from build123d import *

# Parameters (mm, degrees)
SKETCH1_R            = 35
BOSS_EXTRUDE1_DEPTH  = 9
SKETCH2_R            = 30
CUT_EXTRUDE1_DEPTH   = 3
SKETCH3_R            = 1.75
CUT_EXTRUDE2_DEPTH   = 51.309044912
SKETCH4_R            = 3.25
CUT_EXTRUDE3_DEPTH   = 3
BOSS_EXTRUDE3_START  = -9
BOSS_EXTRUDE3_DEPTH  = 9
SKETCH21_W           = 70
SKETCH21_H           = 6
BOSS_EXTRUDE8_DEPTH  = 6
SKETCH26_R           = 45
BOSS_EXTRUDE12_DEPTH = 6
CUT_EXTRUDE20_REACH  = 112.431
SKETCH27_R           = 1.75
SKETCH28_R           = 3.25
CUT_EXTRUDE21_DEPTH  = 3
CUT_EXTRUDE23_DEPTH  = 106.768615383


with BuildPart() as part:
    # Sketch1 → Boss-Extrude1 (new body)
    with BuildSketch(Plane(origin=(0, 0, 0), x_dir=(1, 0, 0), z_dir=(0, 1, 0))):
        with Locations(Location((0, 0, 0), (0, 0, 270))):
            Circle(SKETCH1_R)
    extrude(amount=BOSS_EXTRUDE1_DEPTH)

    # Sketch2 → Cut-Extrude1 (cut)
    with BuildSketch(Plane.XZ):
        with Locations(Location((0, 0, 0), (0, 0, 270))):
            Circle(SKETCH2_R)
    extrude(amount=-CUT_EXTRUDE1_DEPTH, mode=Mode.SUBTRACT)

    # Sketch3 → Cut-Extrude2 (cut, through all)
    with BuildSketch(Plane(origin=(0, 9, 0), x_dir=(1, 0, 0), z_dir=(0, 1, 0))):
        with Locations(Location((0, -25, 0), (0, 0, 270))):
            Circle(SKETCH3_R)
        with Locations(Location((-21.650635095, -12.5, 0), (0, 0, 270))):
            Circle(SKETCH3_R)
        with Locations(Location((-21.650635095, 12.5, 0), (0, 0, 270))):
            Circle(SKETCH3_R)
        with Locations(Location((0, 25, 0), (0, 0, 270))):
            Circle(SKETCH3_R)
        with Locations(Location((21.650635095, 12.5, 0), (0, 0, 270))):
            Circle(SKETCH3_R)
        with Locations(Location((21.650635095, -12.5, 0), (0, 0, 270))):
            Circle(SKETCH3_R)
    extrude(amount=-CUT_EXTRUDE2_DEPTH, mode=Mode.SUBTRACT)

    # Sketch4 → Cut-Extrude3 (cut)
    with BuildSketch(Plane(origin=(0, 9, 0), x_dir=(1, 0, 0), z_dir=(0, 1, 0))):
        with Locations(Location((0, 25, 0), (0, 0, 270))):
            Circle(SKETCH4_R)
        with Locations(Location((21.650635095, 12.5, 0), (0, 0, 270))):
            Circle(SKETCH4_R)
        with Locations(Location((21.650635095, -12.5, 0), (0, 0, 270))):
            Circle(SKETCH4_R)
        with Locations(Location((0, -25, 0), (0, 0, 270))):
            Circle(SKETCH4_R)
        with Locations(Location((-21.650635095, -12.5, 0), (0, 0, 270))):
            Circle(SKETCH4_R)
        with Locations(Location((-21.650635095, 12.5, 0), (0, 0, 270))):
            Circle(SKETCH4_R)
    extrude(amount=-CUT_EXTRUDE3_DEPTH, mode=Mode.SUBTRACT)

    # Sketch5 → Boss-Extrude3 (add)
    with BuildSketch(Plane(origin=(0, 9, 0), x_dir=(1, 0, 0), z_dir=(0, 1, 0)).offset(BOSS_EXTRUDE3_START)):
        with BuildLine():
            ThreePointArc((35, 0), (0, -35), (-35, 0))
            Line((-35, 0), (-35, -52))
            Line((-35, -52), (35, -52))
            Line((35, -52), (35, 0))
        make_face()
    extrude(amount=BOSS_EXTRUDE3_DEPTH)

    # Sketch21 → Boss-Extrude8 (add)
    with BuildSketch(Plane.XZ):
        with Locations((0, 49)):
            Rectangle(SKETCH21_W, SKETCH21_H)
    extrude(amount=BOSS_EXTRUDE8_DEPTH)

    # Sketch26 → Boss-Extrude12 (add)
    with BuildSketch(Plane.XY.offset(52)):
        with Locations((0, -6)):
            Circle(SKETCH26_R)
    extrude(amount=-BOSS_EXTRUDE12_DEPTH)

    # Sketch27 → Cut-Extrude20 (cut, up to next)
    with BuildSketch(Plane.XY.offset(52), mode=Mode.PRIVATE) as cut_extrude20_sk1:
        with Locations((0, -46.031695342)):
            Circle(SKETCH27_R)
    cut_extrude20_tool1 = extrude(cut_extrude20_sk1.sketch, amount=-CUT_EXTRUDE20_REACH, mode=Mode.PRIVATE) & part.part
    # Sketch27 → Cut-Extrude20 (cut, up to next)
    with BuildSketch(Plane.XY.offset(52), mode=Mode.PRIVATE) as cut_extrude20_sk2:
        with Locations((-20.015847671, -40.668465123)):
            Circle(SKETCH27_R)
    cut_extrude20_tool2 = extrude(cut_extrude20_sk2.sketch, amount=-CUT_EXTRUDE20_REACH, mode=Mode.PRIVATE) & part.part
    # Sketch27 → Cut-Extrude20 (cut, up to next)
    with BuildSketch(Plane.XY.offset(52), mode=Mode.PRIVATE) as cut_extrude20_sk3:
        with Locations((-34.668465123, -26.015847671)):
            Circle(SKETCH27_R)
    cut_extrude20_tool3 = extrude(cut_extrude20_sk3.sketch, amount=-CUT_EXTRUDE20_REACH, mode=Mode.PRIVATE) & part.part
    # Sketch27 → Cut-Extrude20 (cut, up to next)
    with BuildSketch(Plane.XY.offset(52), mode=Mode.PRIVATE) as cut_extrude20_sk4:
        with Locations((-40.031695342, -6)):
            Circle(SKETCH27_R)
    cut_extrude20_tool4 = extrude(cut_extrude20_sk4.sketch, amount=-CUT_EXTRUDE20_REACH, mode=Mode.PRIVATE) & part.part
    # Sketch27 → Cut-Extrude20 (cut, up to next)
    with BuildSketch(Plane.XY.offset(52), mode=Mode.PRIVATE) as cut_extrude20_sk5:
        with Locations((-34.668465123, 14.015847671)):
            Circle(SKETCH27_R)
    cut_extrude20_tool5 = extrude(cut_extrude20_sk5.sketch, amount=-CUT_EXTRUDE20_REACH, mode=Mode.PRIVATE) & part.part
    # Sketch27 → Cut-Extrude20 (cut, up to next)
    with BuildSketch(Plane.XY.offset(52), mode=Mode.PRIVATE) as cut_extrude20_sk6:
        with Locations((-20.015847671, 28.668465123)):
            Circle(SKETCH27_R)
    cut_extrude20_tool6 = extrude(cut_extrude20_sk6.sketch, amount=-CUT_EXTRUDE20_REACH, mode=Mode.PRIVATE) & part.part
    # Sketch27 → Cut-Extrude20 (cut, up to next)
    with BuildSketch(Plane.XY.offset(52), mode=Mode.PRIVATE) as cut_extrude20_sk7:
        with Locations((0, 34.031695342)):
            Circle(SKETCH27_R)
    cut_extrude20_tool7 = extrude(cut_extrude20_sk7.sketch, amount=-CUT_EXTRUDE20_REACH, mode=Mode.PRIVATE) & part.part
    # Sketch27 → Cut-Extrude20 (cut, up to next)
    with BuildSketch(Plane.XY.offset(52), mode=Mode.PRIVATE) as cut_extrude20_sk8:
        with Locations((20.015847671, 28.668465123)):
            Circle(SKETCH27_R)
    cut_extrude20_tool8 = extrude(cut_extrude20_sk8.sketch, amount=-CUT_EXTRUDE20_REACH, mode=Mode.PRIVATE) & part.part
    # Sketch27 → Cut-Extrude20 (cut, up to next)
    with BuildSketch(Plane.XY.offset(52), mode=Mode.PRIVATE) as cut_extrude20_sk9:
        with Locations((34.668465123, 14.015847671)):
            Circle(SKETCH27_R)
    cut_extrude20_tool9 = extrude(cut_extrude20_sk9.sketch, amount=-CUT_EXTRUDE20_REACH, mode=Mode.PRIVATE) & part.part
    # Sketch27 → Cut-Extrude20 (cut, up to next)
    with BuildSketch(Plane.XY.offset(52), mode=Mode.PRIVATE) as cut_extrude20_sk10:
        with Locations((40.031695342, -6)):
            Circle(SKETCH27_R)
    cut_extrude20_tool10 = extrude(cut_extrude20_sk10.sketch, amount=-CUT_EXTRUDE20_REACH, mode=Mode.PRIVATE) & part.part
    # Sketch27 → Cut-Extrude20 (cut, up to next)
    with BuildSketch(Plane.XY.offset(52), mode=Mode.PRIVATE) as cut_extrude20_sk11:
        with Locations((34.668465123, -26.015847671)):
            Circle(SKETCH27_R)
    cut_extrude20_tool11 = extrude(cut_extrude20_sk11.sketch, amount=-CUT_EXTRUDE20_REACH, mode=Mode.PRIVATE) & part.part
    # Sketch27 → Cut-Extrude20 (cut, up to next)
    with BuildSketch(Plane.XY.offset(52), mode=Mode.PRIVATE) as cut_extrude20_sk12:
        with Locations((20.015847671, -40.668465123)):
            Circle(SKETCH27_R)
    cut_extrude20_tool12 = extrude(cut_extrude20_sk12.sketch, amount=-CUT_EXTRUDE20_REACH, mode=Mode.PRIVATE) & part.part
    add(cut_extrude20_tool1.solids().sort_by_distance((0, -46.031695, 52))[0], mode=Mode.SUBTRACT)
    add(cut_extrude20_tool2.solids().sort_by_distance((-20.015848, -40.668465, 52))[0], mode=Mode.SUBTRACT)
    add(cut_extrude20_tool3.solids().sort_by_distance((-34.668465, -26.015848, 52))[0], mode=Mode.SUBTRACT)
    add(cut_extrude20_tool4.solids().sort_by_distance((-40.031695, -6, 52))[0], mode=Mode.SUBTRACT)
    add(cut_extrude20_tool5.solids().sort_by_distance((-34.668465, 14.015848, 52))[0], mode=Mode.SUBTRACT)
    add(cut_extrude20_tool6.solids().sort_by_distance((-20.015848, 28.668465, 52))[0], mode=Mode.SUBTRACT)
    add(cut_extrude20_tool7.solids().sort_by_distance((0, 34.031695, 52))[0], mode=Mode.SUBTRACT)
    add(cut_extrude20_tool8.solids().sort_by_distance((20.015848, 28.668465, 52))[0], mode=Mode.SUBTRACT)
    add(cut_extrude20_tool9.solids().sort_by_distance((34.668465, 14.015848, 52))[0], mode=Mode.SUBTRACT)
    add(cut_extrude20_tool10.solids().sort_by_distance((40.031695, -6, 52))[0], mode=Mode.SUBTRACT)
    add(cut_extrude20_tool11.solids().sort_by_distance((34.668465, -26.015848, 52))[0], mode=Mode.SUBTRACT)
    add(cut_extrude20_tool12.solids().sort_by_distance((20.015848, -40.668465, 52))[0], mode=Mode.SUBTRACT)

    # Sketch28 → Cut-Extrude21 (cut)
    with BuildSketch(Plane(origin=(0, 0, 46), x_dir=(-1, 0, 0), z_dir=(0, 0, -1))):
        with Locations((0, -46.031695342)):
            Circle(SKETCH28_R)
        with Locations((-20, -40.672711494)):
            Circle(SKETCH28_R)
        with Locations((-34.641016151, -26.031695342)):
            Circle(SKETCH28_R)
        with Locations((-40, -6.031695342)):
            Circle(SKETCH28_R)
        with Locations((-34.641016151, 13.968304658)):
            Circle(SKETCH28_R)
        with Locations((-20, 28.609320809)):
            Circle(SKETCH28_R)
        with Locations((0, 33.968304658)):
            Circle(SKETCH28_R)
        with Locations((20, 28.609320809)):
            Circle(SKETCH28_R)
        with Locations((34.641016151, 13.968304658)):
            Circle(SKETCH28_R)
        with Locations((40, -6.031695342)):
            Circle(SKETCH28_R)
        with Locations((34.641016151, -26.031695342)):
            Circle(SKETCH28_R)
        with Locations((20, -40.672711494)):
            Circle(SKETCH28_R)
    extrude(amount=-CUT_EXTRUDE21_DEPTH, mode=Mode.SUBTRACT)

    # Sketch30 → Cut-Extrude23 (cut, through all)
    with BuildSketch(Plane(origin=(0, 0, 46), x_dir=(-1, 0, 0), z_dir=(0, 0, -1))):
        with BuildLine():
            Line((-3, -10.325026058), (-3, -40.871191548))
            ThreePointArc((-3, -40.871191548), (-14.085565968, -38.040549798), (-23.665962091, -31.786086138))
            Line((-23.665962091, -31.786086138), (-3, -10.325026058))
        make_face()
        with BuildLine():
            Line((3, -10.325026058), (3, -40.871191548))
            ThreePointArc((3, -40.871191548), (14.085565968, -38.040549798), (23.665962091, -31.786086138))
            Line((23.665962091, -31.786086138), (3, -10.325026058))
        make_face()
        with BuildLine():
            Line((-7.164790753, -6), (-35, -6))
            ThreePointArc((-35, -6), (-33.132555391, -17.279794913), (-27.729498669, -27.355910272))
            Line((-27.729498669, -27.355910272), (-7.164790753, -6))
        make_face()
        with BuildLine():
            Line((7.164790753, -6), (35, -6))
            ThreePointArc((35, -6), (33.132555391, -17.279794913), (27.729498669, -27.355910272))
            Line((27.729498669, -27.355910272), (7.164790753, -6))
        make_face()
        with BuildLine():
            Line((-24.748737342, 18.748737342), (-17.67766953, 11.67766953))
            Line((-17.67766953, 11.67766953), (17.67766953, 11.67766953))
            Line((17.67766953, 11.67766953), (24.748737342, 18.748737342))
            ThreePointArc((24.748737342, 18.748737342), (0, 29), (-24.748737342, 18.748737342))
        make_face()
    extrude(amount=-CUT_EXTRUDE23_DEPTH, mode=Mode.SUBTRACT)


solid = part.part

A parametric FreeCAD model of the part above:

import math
import FreeCAD as App
import Part
import Sketcher
Q = App.Units.Quantity

doc = App.newDocument("Part")
body = doc.addObject("PartDesign::Body", "Body")

# Sketch on XZ plane
sketch1 = body.newObject("Sketcher::SketchObject", "Sketch")
sketch1.AttachmentSupport = (doc.getObject("XZ_Plane"), [""])
sketch1.MapMode = "FlatFace"
sketch1.addGeometry(Part.Circle(App.Vector(0, 0, 0), App.Vector(0, 0, 1), 35), False)
sketch1.addConstraint([
    Sketcher.Constraint("Coincident", 0, 3, -1, 1),
    Sketcher.Constraint("Diameter", 0, Q("70 mm")),
])
pad1 = body.newObject("PartDesign::Pad", "Pad")
pad1.Profile = sketch1
pad1.Length = 9
pad1.Reversed = True

# Sketch on XZ plane
sketch2 = body.newObject("Sketcher::SketchObject", "Sketch001")
sketch2.AttachmentSupport = (doc.getObject("XZ_Plane"), [""])
sketch2.MapMode = "FlatFace"
sketch2.addGeometry(Part.Circle(App.Vector(0, 0, 0), App.Vector(0, 0, 1), 30), False)
sketch2.addConstraint([
    Sketcher.Constraint("Coincident", 0, 3, -1, 1),
    Sketcher.Constraint("Diameter", 0, Q("60 mm")),
])
pocket1 = body.newObject("PartDesign::Pocket", "Pocket")
pocket1.Profile = sketch2
pocket1.Length = 3

# Sketch on XZ plane
sketch3 = body.newObject("Sketcher::SketchObject", "Sketch002")
sketch3.AttachmentSupport = (doc.getObject("XZ_Plane"), [""])
sketch3.MapMode = "FlatFace"
sketch3.AttachmentOffset = App.Placement(App.Vector(0, 0, -9), App.Rotation())
sketch3.addGeometry([
    Part.Circle(App.Vector(0, 25, 0), App.Vector(0, 0, 1), 1.75),  # 0
    Part.Circle(App.Vector(-21.650635, 12.5, 0), App.Vector(0, 0, 1), 1.75),  # 1
    Part.Circle(App.Vector(-21.650635, -12.5, 0), App.Vector(0, 0, 1), 1.75),  # 2
    Part.Circle(App.Vector(0, -25, 0), App.Vector(0, 0, 1), 1.75),  # 3
    Part.Circle(App.Vector(21.650635, -12.5, 0), App.Vector(0, 0, 1), 1.75),  # 4
    Part.Circle(App.Vector(21.650635, 12.5, 0), App.Vector(0, 0, 1), 1.75),  # 5
], False)
sketch3.addConstraint([
    Sketcher.Constraint("Equal", 0, 1),
    Sketcher.Constraint("Equal", 1, 2),
    Sketcher.Constraint("Equal", 2, 3),
    Sketcher.Constraint("Equal", 3, 4),
    Sketcher.Constraint("Equal", 4, 5),
    Sketcher.Constraint("Symmetric", 0, 3, 3, 3, -1, 1),
    Sketcher.Constraint("Symmetric", 1, 3, 4, 3, -1, 1),
    Sketcher.Constraint("Symmetric", 2, 3, 5, 3, -1, 1),
    Sketcher.Constraint("Symmetric", 2, 3, 4, 3, -2),
    Sketcher.Constraint("PointOnObject", 0, 3, -2),
    Sketcher.Constraint("Diameter", 0, Q("3.5 mm")),
    Sketcher.Constraint("DistanceY", -1, 1, 0, 3, Q("25 mm")),
    Sketcher.Constraint("DistanceY", 2, 3, 1, 3, Q("25 mm")),
    Sketcher.Constraint("DistanceX", 2, 3, 4, 3, Q("43.30127 mm")),
])
pocket2 = body.newObject("PartDesign::Pocket", "Pocket001")
pocket2.Profile = sketch3
pocket2.Type = "ThroughAll"
pocket2.Reversed = True

# Sketch on XZ plane
sketch4 = body.newObject("Sketcher::SketchObject", "Sketch003")
sketch4.AttachmentSupport = (doc.getObject("XZ_Plane"), [""])
sketch4.MapMode = "FlatFace"
sketch4.AttachmentOffset = App.Placement(App.Vector(0, 0, -9), App.Rotation())
sketch4.addGeometry([
    Part.Circle(App.Vector(0, -25, 0), App.Vector(0, 0, 1), 3.25),  # 0
    Part.Circle(App.Vector(21.650635, -12.5, 0), App.Vector(0, 0, 1), 3.25),  # 1
    Part.Circle(App.Vector(21.650635, 12.5, 0), App.Vector(0, 0, 1), 3.25),  # 2
    Part.Circle(App.Vector(0, 25, 0), App.Vector(0, 0, 1), 3.25),  # 3
    Part.Circle(App.Vector(-21.650635, 12.5, 0), App.Vector(0, 0, 1), 3.25),  # 4
    Part.Circle(App.Vector(-21.650635, -12.5, 0), App.Vector(0, 0, 1), 3.25),  # 5
], False)
sketch4.addConstraint([
    Sketcher.Constraint("Equal", 0, 1),
    Sketcher.Constraint("Equal", 1, 2),
    Sketcher.Constraint("Equal", 2, 3),
    Sketcher.Constraint("Equal", 3, 4),
    Sketcher.Constraint("Equal", 4, 5),
    Sketcher.Constraint("Symmetric", 0, 3, 3, 3, -1, 1),
    Sketcher.Constraint("Symmetric", 1, 3, 4, 3, -1, 1),
    Sketcher.Constraint("Symmetric", 2, 3, 5, 3, -1, 1),
    Sketcher.Constraint("Symmetric", 2, 3, 4, 3, -2),
    Sketcher.Constraint("PointOnObject", 0, 3, -2),
    Sketcher.Constraint("Diameter", 0, Q("6.5 mm")),
    Sketcher.Constraint("DistanceY", 0, 3, -1, 1, Q("25 mm")),
    Sketcher.Constraint("DistanceY", 1, 3, 2, 3, Q("25 mm")),
    Sketcher.Constraint("DistanceX", 4, 3, 2, 3, Q("43.30127 mm")),
])
pocket3 = body.newObject("PartDesign::Pocket", "Pocket002")
pocket3.Profile = sketch4
pocket3.Length = 3
pocket3.Reversed = True

# Sketch on XZ plane
sketch5 = body.newObject("Sketcher::SketchObject", "Sketch004")
sketch5.AttachmentSupport = (doc.getObject("XZ_Plane"), [""])
sketch5.MapMode = "FlatFace"
sketch5.addGeometry([
    Part.ArcOfCircle(Part.Circle(App.Vector(0, 0, 0), App.Vector(0, 0, 1), 35), math.radians(0), math.radians(180)),
    Part.LineSegment(App.Vector(-35, 0, 0), App.Vector(-35, 52, 0)),
    Part.LineSegment(App.Vector(-35, 52, 0), App.Vector(35, 52, 0)),
    Part.LineSegment(App.Vector(35, 52, 0), App.Vector(35, 0, 0)),
], False)
sketch5.addConstraint([
    Sketcher.Constraint("Tangent", 0, 2, 1, 1),
    Sketcher.Constraint("Coincident", 1, 2, 2, 1),
    Sketcher.Constraint("Coincident", 2, 2, 3, 1),
    Sketcher.Constraint("Tangent", 3, 2, 0, 1),
    Sketcher.Constraint("Vertical", 1),
    Sketcher.Constraint("Horizontal", 2),
    Sketcher.Constraint("Vertical", 3),
    Sketcher.Constraint("Coincident", 0, 3, -1, 1),
    Sketcher.Constraint("Radius", 0, Q("35 mm")),
    Sketcher.Constraint("DistanceY", 1, 1, 1, 2, Q("52 mm")),
])
pad2 = body.newObject("PartDesign::Pad", "Pad001")
pad2.Profile = sketch5
pad2.Length = 9
pad2.Reversed = True

# Sketch on XZ plane
sketch6 = body.newObject("Sketcher::SketchObject", "Sketch005")
sketch6.AttachmentSupport = (doc.getObject("XZ_Plane"), [""])
sketch6.MapMode = "FlatFace"
sketch6.addGeometry([
    Part.LineSegment(App.Vector(-35, 52, 0), App.Vector(-35, 46, 0)),
    Part.LineSegment(App.Vector(-35, 46, 0), App.Vector(35, 46, 0)),
    Part.LineSegment(App.Vector(35, 46, 0), App.Vector(35, 52, 0)),
    Part.LineSegment(App.Vector(35, 52, 0), App.Vector(-35, 52, 0)),
], False)
sketch6.addConstraint([
    Sketcher.Constraint("Coincident", 0, 2, 1, 1),
    Sketcher.Constraint("Coincident", 1, 2, 2, 1),
    Sketcher.Constraint("Coincident", 2, 2, 3, 1),
    Sketcher.Constraint("Coincident", 3, 2, 0, 1),
    Sketcher.Constraint("Vertical", 0),
    Sketcher.Constraint("Horizontal", 1),
    Sketcher.Constraint("Vertical", 2),
    Sketcher.Constraint("Horizontal", 3),
    Sketcher.Constraint("DistanceX", 1, 1, 1, 2, Q("70 mm")),
    Sketcher.Constraint("DistanceY", 0, 2, 0, 1, Q("6 mm")),
    Sketcher.Constraint("DistanceX", 0, 2, -1, 1, Q("35 mm")),
    Sketcher.Constraint("DistanceY", -1, 1, 0, 2, Q("46 mm")),
])
pad3 = body.newObject("PartDesign::Pad", "Pad002")
pad3.Profile = sketch6
pad3.Length = 6

# Sketch on XY plane
sketch7 = body.newObject("Sketcher::SketchObject", "Sketch006")
sketch7.AttachmentSupport = (doc.getObject("XY_Plane"), [""])
sketch7.MapMode = "FlatFace"
sketch7.AttachmentOffset = App.Placement(App.Vector(0, 0, 52), App.Rotation())
sketch7.addGeometry(Part.Circle(App.Vector(0, -6, 0), App.Vector(0, 0, 1), 45), False)
sketch7.addConstraint([
    Sketcher.Constraint("PointOnObject", 0, 3, -2),
    Sketcher.Constraint("Diameter", 0, Q("90 mm")),
    Sketcher.Constraint("DistanceY", 0, 3, -1, 1, Q("6 mm")),
])
pad4 = body.newObject("PartDesign::Pad", "Pad003")
pad4.Profile = sketch7
pad4.Length = 6
pad4.Reversed = True

# Sketch on XY plane
sketch8 = body.newObject("Sketcher::SketchObject", "Sketch007")
sketch8.AttachmentSupport = (doc.getObject("XY_Plane"), [""])
sketch8.MapMode = "FlatFace"
sketch8.AttachmentOffset = App.Placement(App.Vector(0, 0, 52), App.Rotation())
sketch8.addGeometry(Part.Circle(App.Vector(0, -46.031695, 0), App.Vector(0, 0, 1), 1.75), False)
sketch8.addConstraint([
    Sketcher.Constraint("PointOnObject", 0, 3, -2),
    Sketcher.Constraint("Diameter", 0, Q("3.5 mm")),
    Sketcher.Constraint("DistanceY", 0, 3, -1, 1, Q("46.031695 mm")),
])
pocket4 = body.newObject("PartDesign::Pocket", "Pocket003")
pocket4.Profile = sketch8
pocket4.Type = "UpToFirst"

# Sketch on XY plane
sketch9 = body.newObject("Sketcher::SketchObject", "Sketch008")
sketch9.AttachmentSupport = (doc.getObject("XY_Plane"), [""])
sketch9.MapMode = "FlatFace"
sketch9.AttachmentOffset = App.Placement(App.Vector(0, 0, 52), App.Rotation())
sketch9.addGeometry(Part.Circle(App.Vector(-20.015848, -40.668465, 0), App.Vector(0, 0, 1), 1.75), False)
sketch9.addConstraint([
    Sketcher.Constraint("Diameter", 0, Q("3.5 mm")),
    Sketcher.Constraint("DistanceX", 0, 3, -1, 1, Q("20.015848 mm")),
    Sketcher.Constraint("DistanceY", 0, 3, -1, 1, Q("40.668465 mm")),
])
pocket5 = body.newObject("PartDesign::Pocket", "Pocket004")
pocket5.Profile = sketch9
pocket5.Type = "UpToFirst"

# Sketch on XY plane
sketch10 = body.newObject("Sketcher::SketchObject", "Sketch009")
sketch10.AttachmentSupport = (doc.getObject("XY_Plane"), [""])
sketch10.MapMode = "FlatFace"
sketch10.AttachmentOffset = App.Placement(App.Vector(0, 0, 52), App.Rotation())
sketch10.addGeometry(Part.Circle(App.Vector(-34.668465, -26.015848, 0), App.Vector(0, 0, 1), 1.75), False)
sketch10.addConstraint([
    Sketcher.Constraint("Diameter", 0, Q("3.5 mm")),
    Sketcher.Constraint("DistanceX", 0, 3, -1, 1, Q("34.668465 mm")),
    Sketcher.Constraint("DistanceY", 0, 3, -1, 1, Q("26.015848 mm")),
])
pocket6 = body.newObject("PartDesign::Pocket", "Pocket005")
pocket6.Profile = sketch10
pocket6.Type = "UpToFirst"

# Sketch on XY plane
sketch11 = body.newObject("Sketcher::SketchObject", "Sketch010")
sketch11.AttachmentSupport = (doc.getObject("XY_Plane"), [""])
sketch11.MapMode = "FlatFace"
sketch11.AttachmentOffset = App.Placement(App.Vector(0, 0, 52), App.Rotation())
sketch11.addGeometry(Part.Circle(App.Vector(-40.031695, -6, 0), App.Vector(0, 0, 1), 1.75), False)
sketch11.addConstraint([
    Sketcher.Constraint("Diameter", 0, Q("3.5 mm")),
    Sketcher.Constraint("DistanceY", 0, 3, -1, 1, Q("6 mm")),
    Sketcher.Constraint("DistanceX", 0, 3, -1, 1, Q("40.031695 mm")),
])
pocket7 = body.newObject("PartDesign::Pocket", "Pocket006")
pocket7.Profile = sketch11
pocket7.Type = "UpToFirst"

# Sketch on XY plane
sketch12 = body.newObject("Sketcher::SketchObject", "Sketch011")
sketch12.AttachmentSupport = (doc.getObject("XY_Plane"), [""])
sketch12.MapMode = "FlatFace"
sketch12.AttachmentOffset = App.Placement(App.Vector(0, 0, 52), App.Rotation())
sketch12.addGeometry(Part.Circle(App.Vector(-34.668465, 14.015848, 0), App.Vector(0, 0, 1), 1.75), False)
sketch12.addConstraint([
    Sketcher.Constraint("Diameter", 0, Q("3.5 mm")),
    Sketcher.Constraint("DistanceX", 0, 3, -1, 1, Q("34.668465 mm")),
    Sketcher.Constraint("DistanceY", -1, 1, 0, 3, Q("14.015848 mm")),
])
pocket8 = body.newObject("PartDesign::Pocket", "Pocket007")
pocket8.Profile = sketch12
pocket8.Type = "UpToFirst"

# Sketch on XY plane
sketch13 = body.newObject("Sketcher::SketchObject", "Sketch012")
sketch13.AttachmentSupport = (doc.getObject("XY_Plane"), [""])
sketch13.MapMode = "FlatFace"
sketch13.AttachmentOffset = App.Placement(App.Vector(0, 0, 52), App.Rotation())
sketch13.addGeometry(Part.Circle(App.Vector(-20.015848, 28.668465, 0), App.Vector(0, 0, 1), 1.75), False)
sketch13.addConstraint([
    Sketcher.Constraint("Diameter", 0, Q("3.5 mm")),
    Sketcher.Constraint("DistanceX", 0, 3, -1, 1, Q("20.015848 mm")),
    Sketcher.Constraint("DistanceY", -1, 1, 0, 3, Q("28.668465 mm")),
])
pocket9 = body.newObject("PartDesign::Pocket", "Pocket008")
pocket9.Profile = sketch13
pocket9.Type = "UpToFirst"

# Sketch on XY plane
sketch14 = body.newObject("Sketcher::SketchObject", "Sketch013")
sketch14.AttachmentSupport = (doc.getObject("XY_Plane"), [""])
sketch14.MapMode = "FlatFace"
sketch14.AttachmentOffset = App.Placement(App.Vector(0, 0, 52), App.Rotation())
sketch14.addGeometry(Part.Circle(App.Vector(0, 34.031695, 0), App.Vector(0, 0, 1), 1.75), False)
sketch14.addConstraint([
    Sketcher.Constraint("PointOnObject", 0, 3, -2),
    Sketcher.Constraint("Diameter", 0, Q("3.5 mm")),
    Sketcher.Constraint("DistanceY", -1, 1, 0, 3, Q("34.031695 mm")),
])
pocket10 = body.newObject("PartDesign::Pocket", "Pocket009")
pocket10.Profile = sketch14
pocket10.Type = "UpToFirst"

# Sketch on XY plane
sketch15 = body.newObject("Sketcher::SketchObject", "Sketch014")
sketch15.AttachmentSupport = (doc.getObject("XY_Plane"), [""])
sketch15.MapMode = "FlatFace"
sketch15.AttachmentOffset = App.Placement(App.Vector(0, 0, 52), App.Rotation())
sketch15.addGeometry(Part.Circle(App.Vector(20.015848, 28.668465, 0), App.Vector(0, 0, 1), 1.75), False)
sketch15.addConstraint([
    Sketcher.Constraint("Diameter", 0, Q("3.5 mm")),
    Sketcher.Constraint("DistanceX", -1, 1, 0, 3, Q("20.015848 mm")),
    Sketcher.Constraint("DistanceY", -1, 1, 0, 3, Q("28.668465 mm")),
])
pocket11 = body.newObject("PartDesign::Pocket", "Pocket010")
pocket11.Profile = sketch15
pocket11.Type = "UpToFirst"

# Sketch on XY plane
sketch16 = body.newObject("Sketcher::SketchObject", "Sketch015")
sketch16.AttachmentSupport = (doc.getObject("XY_Plane"), [""])
sketch16.MapMode = "FlatFace"
sketch16.AttachmentOffset = App.Placement(App.Vector(0, 0, 52), App.Rotation())
sketch16.addGeometry(Part.Circle(App.Vector(34.668465, 14.015848, 0), App.Vector(0, 0, 1), 1.75), False)
sketch16.addConstraint([
    Sketcher.Constraint("Diameter", 0, Q("3.5 mm")),
    Sketcher.Constraint("DistanceX", -1, 1, 0, 3, Q("34.668465 mm")),
    Sketcher.Constraint("DistanceY", -1, 1, 0, 3, Q("14.015848 mm")),
])
pocket12 = body.newObject("PartDesign::Pocket", "Pocket011")
pocket12.Profile = sketch16
pocket12.Type = "UpToFirst"

# Sketch on XY plane
sketch17 = body.newObject("Sketcher::SketchObject", "Sketch016")
sketch17.AttachmentSupport = (doc.getObject("XY_Plane"), [""])
sketch17.MapMode = "FlatFace"
sketch17.AttachmentOffset = App.Placement(App.Vector(0, 0, 52), App.Rotation())
sketch17.addGeometry(Part.Circle(App.Vector(40.031695, -6, 0), App.Vector(0, 0, 1), 1.75), False)
sketch17.addConstraint([
    Sketcher.Constraint("Diameter", 0, Q("3.5 mm")),
    Sketcher.Constraint("DistanceY", 0, 3, -1, 1, Q("6 mm")),
    Sketcher.Constraint("DistanceX", -1, 1, 0, 3, Q("40.031695 mm")),
])
pocket13 = body.newObject("PartDesign::Pocket", "Pocket012")
pocket13.Profile = sketch17
pocket13.Type = "UpToFirst"

# Sketch on XY plane
sketch18 = body.newObject("Sketcher::SketchObject", "Sketch017")
sketch18.AttachmentSupport = (doc.getObject("XY_Plane"), [""])
sketch18.MapMode = "FlatFace"
sketch18.AttachmentOffset = App.Placement(App.Vector(0, 0, 52), App.Rotation())
sketch18.addGeometry(Part.Circle(App.Vector(34.668465, -26.015848, 0), App.Vector(0, 0, 1), 1.75), False)
sketch18.addConstraint([
    Sketcher.Constraint("Diameter", 0, Q("3.5 mm")),
    Sketcher.Constraint("DistanceX", -1, 1, 0, 3, Q("34.668465 mm")),
    Sketcher.Constraint("DistanceY", 0, 3, -1, 1, Q("26.015848 mm")),
])
pocket14 = body.newObject("PartDesign::Pocket", "Pocket013")
pocket14.Profile = sketch18
pocket14.Type = "UpToFirst"

# Sketch on XY plane
sketch19 = body.newObject("Sketcher::SketchObject", "Sketch018")
sketch19.AttachmentSupport = (doc.getObject("XY_Plane"), [""])
sketch19.MapMode = "FlatFace"
sketch19.AttachmentOffset = App.Placement(App.Vector(0, 0, 52), App.Rotation())
sketch19.addGeometry(Part.Circle(App.Vector(20.015848, -40.668465, 0), App.Vector(0, 0, 1), 1.75), False)
sketch19.addConstraint([
    Sketcher.Constraint("Diameter", 0, Q("3.5 mm")),
    Sketcher.Constraint("DistanceX", -1, 1, 0, 3, Q("20.015848 mm")),
    Sketcher.Constraint("DistanceY", 0, 3, -1, 1, Q("40.668465 mm")),
])
pocket15 = body.newObject("PartDesign::Pocket", "Pocket014")
pocket15.Profile = sketch19
pocket15.Type = "UpToFirst"

# Sketch on XY plane
sketch20 = body.newObject("Sketcher::SketchObject", "Sketch019")
sketch20.AttachmentSupport = (doc.getObject("XY_Plane"), [""])
sketch20.MapMode = "FlatFace"
sketch20.AttachmentOffset = App.Placement(App.Vector(0, 0, 46), App.Rotation())
sketch20.addGeometry([
    Part.Circle(App.Vector(0, -46.031695, 0), App.Vector(0, 0, 1), 3.25),  # 0
    Part.Circle(App.Vector(20, -40.672711, 0), App.Vector(0, 0, 1), 3.25),  # 1
    Part.Circle(App.Vector(34.641016, -26.031695, 0), App.Vector(0, 0, 1), 3.25),  # 2
    Part.Circle(App.Vector(40, -6.031695, 0), App.Vector(0, 0, 1), 3.25),  # 3
    Part.Circle(App.Vector(34.641016, 13.968305, 0), App.Vector(0, 0, 1), 3.25),  # 4
    Part.Circle(App.Vector(20, 28.609321, 0), App.Vector(0, 0, 1), 3.25),  # 5
    Part.Circle(App.Vector(0, 33.968305, 0), App.Vector(0, 0, 1), 3.25),  # 6
    Part.Circle(App.Vector(-20, 28.609321, 0), App.Vector(0, 0, 1), 3.25),  # 7
    Part.Circle(App.Vector(-34.641016, 13.968305, 0), App.Vector(0, 0, 1), 3.25),  # 8
    Part.Circle(App.Vector(-40, -6.031695, 0), App.Vector(0, 0, 1), 3.25),  # 9
    Part.Circle(App.Vector(-34.641016, -26.031695, 0), App.Vector(0, 0, 1), 3.25),  # 10
    Part.Circle(App.Vector(-20, -40.672711, 0), App.Vector(0, 0, 1), 3.25),  # 11
], False)
sketch20.addConstraint([
    Sketcher.Constraint("Equal", 0, 1),
    Sketcher.Constraint("Equal", 1, 2),
    Sketcher.Constraint("Equal", 2, 3),
    Sketcher.Constraint("Equal", 3, 4),
    Sketcher.Constraint("Equal", 4, 5),
    Sketcher.Constraint("Equal", 5, 6),
    Sketcher.Constraint("Equal", 6, 7),
    Sketcher.Constraint("Equal", 7, 8),
    Sketcher.Constraint("Equal", 8, 9),
    Sketcher.Constraint("Equal", 9, 10),
    Sketcher.Constraint("Equal", 10, 11),
    Sketcher.Constraint("Symmetric", 5, 3, 7, 3, -2),
    Sketcher.Constraint("Symmetric", 4, 3, 8, 3, -2),
    Sketcher.Constraint("Symmetric", 3, 3, 9, 3, -2),
    Sketcher.Constraint("Symmetric", 2, 3, 10, 3, -2),
    Sketcher.Constraint("Symmetric", 1, 3, 11, 3, -2),
    Sketcher.Constraint("PointOnObject", 0, 3, -2),
    Sketcher.Constraint("PointOnObject", 6, 3, -2),
    Sketcher.Constraint("Vertical", 2, 3, 4, 3),
    Sketcher.Constraint("Vertical", 1, 3, 5, 3),
    Sketcher.Constraint("Diameter", 0, Q("6.5 mm")),
    Sketcher.Constraint("DistanceX", -1, 1, 1, 3, Q("20 mm")),
    Sketcher.Constraint("DistanceX", -1, 1, 3, 3, Q("40 mm")),
    Sketcher.Constraint("DistanceY", 0, 3, 2, 3, Q("20 mm")),
    Sketcher.Constraint("DistanceY", 2, 3, 3, 3, Q("20 mm")),
    Sketcher.Constraint("DistanceY", 3, 3, 4, 3, Q("20 mm")),
    Sketcher.Constraint("DistanceY", 4, 3, 6, 3, Q("20 mm")),
    Sketcher.Constraint("DistanceY", 1, 3, -1, 1, Q("40.672711 mm")),
    Sketcher.Constraint("DistanceY", -1, 1, 5, 3, Q("28.609321 mm")),
    Sketcher.Constraint("DistanceY", 0, 3, -1, 1, Q("46.031695 mm")),
    Sketcher.Constraint("DistanceX", -1, 1, 2, 3, Q("34.641016 mm")),
])
pocket16 = body.newObject("PartDesign::Pocket", "Pocket015")
pocket16.Profile = sketch20
pocket16.Length = 3
pocket16.Reversed = True

# Sketch on XY plane
sketch21 = body.newObject("Sketcher::SketchObject", "Sketch020")
sketch21.AttachmentSupport = (doc.getObject("XY_Plane"), [""])
sketch21.MapMode = "FlatFace"
sketch21.AttachmentOffset = App.Placement(App.Vector(0, 0, 46), App.Rotation())
sketch21.addGeometry([
    Part.LineSegment(App.Vector(3, -40.871192, 0), App.Vector(3, -10.325026, 0)),  # 0
    Part.LineSegment(App.Vector(3, -10.325026, 0), App.Vector(23.665962, -31.786086, 0)),  # 1
    Part.ArcOfCircle(Part.Circle(App.Vector(0, -6, 0), App.Vector(0, 0, 1), 35), math.radians(-85.0829), math.radians(-47.4549)),  # 2
    Part.LineSegment(App.Vector(-3, -10.325026, 0), App.Vector(-3, -40.871192, 0)),  # 3
    Part.ArcOfCircle(Part.Circle(App.Vector(0, -6, 0), App.Vector(0, 0, 1), 35), math.radians(-132.5451), math.radians(-94.9171)),  # 4
    Part.LineSegment(App.Vector(-23.665962, -31.786086, 0), App.Vector(-3, -10.325026, 0)),  # 5
    Part.LineSegment(App.Vector(7.164791, -6, 0), App.Vector(35, -6, 0)),  # 6
    Part.ArcOfCircle(Part.Circle(App.Vector(0, -6, 0), App.Vector(0, 0, 1), 35), math.radians(-37.601714), math.radians(0)),  # 7
    Part.LineSegment(App.Vector(27.729499, -27.35591, 0), App.Vector(7.164791, -6, 0)),  # 8
    Part.LineSegment(App.Vector(-35, -6, 0), App.Vector(-7.164791, -6, 0)),  # 9
    Part.LineSegment(App.Vector(-7.164791, -6, 0), App.Vector(-27.729499, -27.35591, 0)),  # 10
    Part.ArcOfCircle(Part.Circle(App.Vector(0, -6, 0), App.Vector(0, 0, 1), 35), math.radians(180), math.radians(217.601714)),  # 11
    Part.LineSegment(App.Vector(24.748737, 18.748737, 0), App.Vector(17.67767, 11.67767, 0)),  # 12
    Part.LineSegment(App.Vector(17.67767, 11.67767, 0), App.Vector(-17.67767, 11.67767, 0)),  # 13
    Part.LineSegment(App.Vector(-17.67767, 11.67767, 0), App.Vector(-24.748737, 18.748737, 0)),  # 14
    Part.ArcOfCircle(Part.Circle(App.Vector(0, -6, 0), App.Vector(0, 0, 1), 35), math.radians(45), math.radians(135)),  # 15
], False)
sketch21.addConstraint([
    Sketcher.Constraint("Coincident", 0, 2, 1, 1),
    Sketcher.Constraint("Coincident", 1, 2, 2, 2),
    Sketcher.Constraint("Coincident", 2, 1, 0, 1),
    Sketcher.Constraint("Coincident", 3, 2, 4, 2),
    Sketcher.Constraint("Coincident", 4, 1, 5, 1),
    Sketcher.Constraint("Coincident", 5, 2, 3, 1),
    Sketcher.Constraint("Coincident", 6, 2, 7, 2),
    Sketcher.Constraint("Coincident", 7, 1, 8, 1),
    Sketcher.Constraint("Coincident", 8, 2, 6, 1),
    Sketcher.Constraint("Coincident", 9, 2, 10, 1),
    Sketcher.Constraint("Coincident", 10, 2, 11, 2),
    Sketcher.Constraint("Coincident", 11, 1, 9, 1),
    Sketcher.Constraint("Coincident", 12, 2, 13, 1),
    Sketcher.Constraint("Coincident", 13, 2, 14, 1),
    Sketcher.Constraint("Coincident", 14, 2, 15, 2),
    Sketcher.Constraint("Coincident", 15, 1, 12, 1),
    Sketcher.Constraint("Vertical", 0),
    Sketcher.Constraint("Vertical", 3),
    Sketcher.Constraint("Horizontal", 6),
    Sketcher.Constraint("Horizontal", 9),
    Sketcher.Constraint("Horizontal", 13),
    Sketcher.Constraint("Coincident", 4, 3, 2, 3),
    Sketcher.Constraint("Coincident", 7, 3, 2, 3),
    Sketcher.Constraint("Coincident", 11, 3, 2, 3),
    Sketcher.Constraint("Coincident", 15, 3, 2, 3),
    Sketcher.Constraint("Equal", 2, 4),
    Sketcher.Constraint("Equal", 4, 7),
    Sketcher.Constraint("Equal", 7, 11),
    Sketcher.Constraint("Equal", 11, 15),
    Sketcher.Constraint("Symmetric", 2, 1, 3, 2, -2),
    Sketcher.Constraint("Symmetric", 8, 2, 9, 2, -2),
    Sketcher.Constraint("Parallel", 1, 8),
    Sketcher.Constraint("Parallel", 5, 10),
    Sketcher.Constraint("Perpendicular", 12, 14),
    Sketcher.Constraint("Horizontal", 1, 2, 4, 1),
    Sketcher.Constraint("Horizontal", 0, 2, 5, 2),
    Sketcher.Constraint("Horizontal", 15, 3, 6, 2),
    Sketcher.Constraint("Horizontal", 14, 2, 15, 1),
    Sketcher.Constraint("Equal", 12, 14),
    Sketcher.Constraint("Radius", 2, Q("35 mm")),
    Sketcher.Constraint("Distance", 12, Q("10 mm")),
    Sketcher.Constraint("DistanceY", 2, 3, -1, 1, Q("6 mm")),
    Sketcher.Constraint("DistanceX", -1, 1, 0, 2, Q("3 mm")),
    Sketcher.Constraint("DistanceX", 6, 1, 6, 2, Q("27.835209 mm")),
    Sketcher.Constraint("DistanceX", 13, 2, 13, 1, Q("35.355339 mm")),
    Sketcher.Constraint("DistanceX", -1, 1, 7, 1, Q("27.729499 mm")),
    Sketcher.Constraint("Distance", 1, Q("29.793608 mm")),
])
pocket17 = body.newObject("PartDesign::Pocket", "Pocket016")
pocket17.Profile = sketch21
pocket17.Type = "ThroughAll"
pocket17.Reversed = True

doc.recompute()
